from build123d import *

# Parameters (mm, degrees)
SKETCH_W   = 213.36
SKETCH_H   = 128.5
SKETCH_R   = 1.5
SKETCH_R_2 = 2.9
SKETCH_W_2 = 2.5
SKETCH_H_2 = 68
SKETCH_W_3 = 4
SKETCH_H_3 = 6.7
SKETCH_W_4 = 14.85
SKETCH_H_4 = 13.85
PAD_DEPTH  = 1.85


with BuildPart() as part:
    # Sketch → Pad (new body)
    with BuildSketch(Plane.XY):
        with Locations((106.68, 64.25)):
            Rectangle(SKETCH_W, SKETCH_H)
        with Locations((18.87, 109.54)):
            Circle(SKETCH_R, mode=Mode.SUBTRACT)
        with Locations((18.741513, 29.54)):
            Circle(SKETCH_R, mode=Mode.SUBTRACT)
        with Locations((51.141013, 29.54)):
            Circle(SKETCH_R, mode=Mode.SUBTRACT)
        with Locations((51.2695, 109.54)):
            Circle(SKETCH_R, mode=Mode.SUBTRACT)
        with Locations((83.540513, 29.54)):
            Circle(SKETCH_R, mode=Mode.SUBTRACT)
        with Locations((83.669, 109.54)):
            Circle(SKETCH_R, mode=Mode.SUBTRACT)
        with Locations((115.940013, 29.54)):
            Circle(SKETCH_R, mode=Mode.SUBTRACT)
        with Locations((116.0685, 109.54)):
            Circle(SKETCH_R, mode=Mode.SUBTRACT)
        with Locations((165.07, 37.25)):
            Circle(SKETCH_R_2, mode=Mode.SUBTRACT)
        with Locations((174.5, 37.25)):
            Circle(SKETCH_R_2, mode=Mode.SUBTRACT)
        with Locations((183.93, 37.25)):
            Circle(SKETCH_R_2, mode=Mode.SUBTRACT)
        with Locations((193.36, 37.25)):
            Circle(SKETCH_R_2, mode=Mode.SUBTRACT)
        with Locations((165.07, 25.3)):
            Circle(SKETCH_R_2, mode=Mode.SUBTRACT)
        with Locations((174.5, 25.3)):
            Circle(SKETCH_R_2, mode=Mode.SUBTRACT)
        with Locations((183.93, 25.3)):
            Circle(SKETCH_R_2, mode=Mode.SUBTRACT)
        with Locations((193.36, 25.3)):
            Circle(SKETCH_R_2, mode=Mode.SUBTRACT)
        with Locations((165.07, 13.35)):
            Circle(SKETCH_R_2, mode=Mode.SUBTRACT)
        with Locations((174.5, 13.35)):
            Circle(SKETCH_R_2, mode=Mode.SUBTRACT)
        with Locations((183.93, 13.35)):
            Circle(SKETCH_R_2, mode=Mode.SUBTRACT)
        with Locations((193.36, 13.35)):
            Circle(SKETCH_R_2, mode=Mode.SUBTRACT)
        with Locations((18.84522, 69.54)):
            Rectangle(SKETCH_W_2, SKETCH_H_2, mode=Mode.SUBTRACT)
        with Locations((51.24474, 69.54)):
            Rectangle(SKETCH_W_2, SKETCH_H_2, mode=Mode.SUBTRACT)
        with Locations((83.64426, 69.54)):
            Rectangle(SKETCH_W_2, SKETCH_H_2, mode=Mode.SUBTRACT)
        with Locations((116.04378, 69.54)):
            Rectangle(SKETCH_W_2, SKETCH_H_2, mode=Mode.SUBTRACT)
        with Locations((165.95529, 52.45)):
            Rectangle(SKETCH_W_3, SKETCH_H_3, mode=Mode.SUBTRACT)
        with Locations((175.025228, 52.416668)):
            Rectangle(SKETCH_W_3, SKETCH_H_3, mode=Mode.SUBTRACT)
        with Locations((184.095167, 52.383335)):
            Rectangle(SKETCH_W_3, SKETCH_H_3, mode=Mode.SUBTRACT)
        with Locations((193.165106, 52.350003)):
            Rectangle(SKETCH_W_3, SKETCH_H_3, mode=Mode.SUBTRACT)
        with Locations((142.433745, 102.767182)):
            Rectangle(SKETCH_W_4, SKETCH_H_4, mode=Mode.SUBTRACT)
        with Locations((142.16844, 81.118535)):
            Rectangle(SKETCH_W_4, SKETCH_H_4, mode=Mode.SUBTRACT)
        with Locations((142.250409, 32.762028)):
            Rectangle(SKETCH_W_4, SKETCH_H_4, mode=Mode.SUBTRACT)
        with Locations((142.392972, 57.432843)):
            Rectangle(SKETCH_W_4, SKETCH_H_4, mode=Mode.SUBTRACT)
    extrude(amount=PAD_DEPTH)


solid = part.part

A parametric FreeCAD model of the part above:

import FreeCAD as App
import Part
import Sketcher
Q = App.Units.Quantity

doc = App.newDocument("Part")
body = doc.addObject("PartDesign::Body", "Body")

# Sketch on XY plane
sketch1 = body.newObject("Sketcher::SketchObject", "Sketch")
sketch1.AttachmentSupport = (doc.getObject("XY_Plane"), [""])
sketch1.MapMode = "FlatFace"
sketch1.addGeometry([
    Part.LineSegment(App.Vector(0, 128.5, 0), App.Vector(0, 0, 0)),  # 0
    Part.LineSegment(App.Vector(0, 0, 0), App.Vector(213.4, 0, 0)),  # 1
    Part.LineSegment(App.Vector(213.4, 0, 0), App.Vector(213.4, 128.5, 0)),  # 2
    Part.LineSegment(App.Vector(213.4, 128.5, 0), App.Vector(0, 128.5, 0)),  # 3
    Part.Circle(App.Vector(18.7, 29.5, 0), App.Vector(0, 0, 1), 1.5),  # 4
    Part.Circle(App.Vector(51.1, 29.5, 0), App.Vector(0, 0, 1), 1.5),  # 5
    Part.Circle(App.Vector(83.5, 29.5, 0), App.Vector(0, 0, 1), 1.5),  # 6
    Part.Circle(App.Vector(115.9, 29.5, 0), App.Vector(0, 0, 1), 1.5),  # 7
    Part.LineSegment(App.Vector(149.7, 25.8, 0), App.Vector(134.8, 25.8, 0)),  # 8
    Part.LineSegment(App.Vector(134.8, 25.8, 0), App.Vector(134.8, 39.7, 0)),  # 9
    Part.LineSegment(App.Vector(134.8, 39.7, 0), App.Vector(149.7, 39.7, 0)),  # 10
    Part.LineSegment(App.Vector(149.7, 39.7, 0), App.Vector(149.7, 25.8, 0)),  # 11
    Part.Circle(App.Vector(165.1, 13.3, 0), App.Vector(0, 0, 1), 2.9),  # 12
    Part.Circle(App.Vector(174.5, 13.3, 0), App.Vector(0, 0, 1), 2.9),  # 13
    Part.Circle(App.Vector(183.9, 13.3, 0), App.Vector(0, 0, 1), 2.9),  # 14
    Part.Circle(App.Vector(193.4, 13.3, 0), App.Vector(0, 0, 1), 2.9),  # 15
    Part.Circle(App.Vector(165.1, 25.3, 0), App.Vector(0, 0, 1), 2.9),  # 16
    Part.Circle(App.Vector(174.5, 25.3, 0), App.Vector(0, 0, 1), 2.9),  # 17
    Part.Circle(App.Vector(183.9, 25.3, 0), App.Vector(0, 0, 1), 2.9),  # 18
    Part.Circle(App.Vector(193.4, 25.3, 0), App.Vector(0, 0, 1), 2.9),  # 19
    Part.LineSegment(App.Vector(149.8, 50.5, 0), App.Vector(135, 50.5, 0)),  # 20
    Part.LineSegment(App.Vector(135, 50.5, 0), App.Vector(135, 64.4, 0)),  # 21
    Part.LineSegment(App.Vector(135, 64.4, 0), App.Vector(149.8, 64.4, 0)),  # 22
    Part.LineSegment(App.Vector(149.8, 64.4, 0), App.Vector(149.8, 50.5, 0)),  # 23
    Part.Circle(App.Vector(165.1, 37.2, 0), App.Vector(0, 0, 1), 2.9),  # 24
    Part.Circle(App.Vector(174.5, 37.2, 0), App.Vector(0, 0, 1), 2.9),  # 25
    Part.Circle(App.Vector(183.9, 37.2, 0), App.Vector(0, 0, 1), 2.9),  # 26
    Part.Circle(App.Vector(193.4, 37.2, 0), App.Vector(0, 0, 1), 2.9),  # 27
    Part.LineSegment(App.Vector(168, 49.1, 0), App.Vector(164, 49.1, 0)),  # 28
    Part.LineSegment(App.Vector(164, 49.1, 0), App.Vector(164, 55.8, 0)),  # 29
    Part.LineSegment(App.Vector(164, 55.8, 0), App.Vector(168, 55.8, 0)),  # 30
    Part.LineSegment(App.Vector(168, 55.8, 0), App.Vector(168, 49.1, 0)),  # 31
    Part.LineSegment(App.Vector(177, 49.1, 0), App.Vector(173, 49.1, 0)),  # 32
    Part.LineSegment(App.Vector(173, 49.1, 0), App.Vector(173, 55.8, 0)),  # 33
    Part.LineSegment(App.Vector(173, 55.8, 0), App.Vector(177, 55.8, 0)),  # 34
    Part.LineSegment(App.Vector(177, 55.8, 0), App.Vector(177, 49.1, 0)),  # 35
    Part.LineSegment(App.Vector(186.1, 49, 0), App.Vector(182.1, 49, 0)),  # 36
    Part.LineSegment(App.Vector(182.1, 49, 0), App.Vector(182.1, 55.7, 0)),  # 37
    Part.LineSegment(App.Vector(182.1, 55.7, 0), App.Vector(186.1, 55.7, 0)),  # 38
    Part.LineSegment(App.Vector(186.1, 55.7, 0), App.Vector(186.1, 49, 0)),  # 39
    Part.LineSegment(App.Vector(195.2, 49, 0), App.Vector(191.2, 49, 0)),  # 40
    Part.LineSegment(App.Vector(191.2, 49, 0), App.Vector(191.2, 55.7, 0)),  # 41
    Part.LineSegment(App.Vector(191.2, 55.7, 0), App.Vector(195.2, 55.7, 0)),  # 42
    Part.LineSegment(App.Vector(195.2, 55.7, 0), App.Vector(195.2, 49, 0)),  # 43
    Part.LineSegment(App.Vector(20.1, 35.5, 0), App.Vector(17.6, 35.5, 0)),  # 44
    Part.LineSegment(App.Vector(17.6, 35.5, 0), App.Vector(17.6, 103.5, 0)),  # 45
    Part.LineSegment(App.Vector(17.6, 103.5, 0), App.Vector(20.1, 103.5, 0)),  # 46
    Part.LineSegment(App.Vector(20.1, 103.5, 0), App.Vector(20.1, 35.5, 0)),  # 47
    Part.LineSegment(App.Vector(52.5, 35.5, 0), App.Vector(50, 35.5, 0)),  # 48
    Part.LineSegment(App.Vector(50, 35.5, 0), App.Vector(50, 103.5, 0)),  # 49
    Part.LineSegment(App.Vector(50, 103.5, 0), App.Vector(52.5, 103.5, 0)),  # 50
    Part.LineSegment(App.Vector(52.5, 103.5, 0), App.Vector(52.5, 35.5, 0)),  # 51
    Part.LineSegment(App.Vector(84.9, 35.5, 0), App.Vector(82.4, 35.5, 0)),  # 52
    Part.LineSegment(App.Vector(82.4, 35.5, 0), App.Vector(82.4, 103.5, 0)),  # 53
    Part.LineSegment(App.Vector(82.4, 103.5, 0), App.Vector(84.9, 103.5, 0)),  # 54
    Part.LineSegment(App.Vector(84.9, 103.5, 0), App.Vector(84.9, 35.5, 0)),  # 55
    Part.Circle(App.Vector(18.9, 109.5, 0), App.Vector(0, 0, 1), 1.5),  # 56
    Part.Circle(App.Vector(51.3, 109.5, 0), App.Vector(0, 0, 1), 1.5),  # 57
    Part.Circle(App.Vector(83.7, 109.5, 0), App.Vector(0, 0, 1), 1.5),  # 58
    Part.LineSegment(App.Vector(117.3, 35.5, 0), App.Vector(114.8, 35.5, 0)),  # 59
    Part.LineSegment(App.Vector(114.8, 35.5, 0), App.Vector(114.8, 103.5, 0)),  # 60
    Part.LineSegment(App.Vector(114.8, 103.5, 0), App.Vector(117.3, 103.5, 0)),  # 61
    Part.LineSegment(App.Vector(117.3, 103.5, 0), App.Vector(117.3, 35.5, 0)),  # 62
    Part.LineSegment(App.Vector(149.6, 74.2, 0), App.Vector(134.7, 74.2, 0)),  # 63
    Part.LineSegment(App.Vector(134.7, 74.2, 0), App.Vector(134.7, 88, 0)),  # 64
    Part.LineSegment(App.Vector(134.7, 88, 0), App.Vector(149.6, 88, 0)),  # 65
    Part.LineSegment(App.Vector(149.6, 88, 0), App.Vector(149.6, 74.2, 0)),  # 66
    Part.Circle(App.Vector(116.1, 109.5, 0), App.Vector(0, 0, 1), 1.5),  # 67
    Part.LineSegment(App.Vector(149.9, 95.8, 0), App.Vector(135, 95.8, 0)),  # 68
    Part.LineSegment(App.Vector(135, 95.8, 0), App.Vector(135, 109.7, 0)),  # 69
    Part.LineSegment(App.Vector(135, 109.7, 0), App.Vector(149.9, 109.7, 0)),  # 70
    Part.LineSegment(App.Vector(149.9, 109.7, 0), App.Vector(149.9, 95.8, 0)),  # 71
], False)
sketch1.addConstraint([
    Sketcher.Constraint("Coincident", 0, 2, 1, 1),
    Sketcher.Constraint("Coincident", 1, 2, 2, 1),
    Sketcher.Constraint("Coincident", 2, 2, 3, 1),
    Sketcher.Constraint("Coincident", 3, 2, 0, 1),
    Sketcher.Constraint("Coincident", 8, 2, 9, 1),
    Sketcher.Constraint("Coincident", 9, 2, 10, 1),
    Sketcher.Constraint("Coincident", 10, 2, 11, 1),
    Sketcher.Constraint("Coincident", 11, 2, 8, 1),
    Sketcher.Constraint("Coincident", 20, 2, 21, 1),
    Sketcher.Constraint("Coincident", 21, 2, 22, 1),
    Sketcher.Constraint("Coincident", 22, 2, 23, 1),
    Sketcher.Constraint("Coincident", 23, 2, 20, 1),
    Sketcher.Constraint("Coincident", 28, 2, 29, 1),
    Sketcher.Constraint("Coincident", 29, 2, 30, 1),
    Sketcher.Constraint("Coincident", 30, 2, 31, 1),
    Sketcher.Constraint("Coincident", 31, 2, 28, 1),
    Sketcher.Constraint("Coincident", 32, 2, 33, 1),
    Sketcher.Constraint("Coincident", 33, 2, 34, 1),
    Sketcher.Constraint("Coincident", 34, 2, 35, 1),
    Sketcher.Constraint("Coincident", 35, 2, 32, 1),
    Sketcher.Constraint("Coincident", 36, 2, 37, 1),
    Sketcher.Constraint("Coincident", 37, 2, 38, 1),
    Sketcher.Constraint("Coincident", 38, 2, 39, 1),
    Sketcher.Constraint("Coincident", 39, 2, 36, 1),
    Sketcher.Constraint("Coincident", 40, 2, 41, 1),
    Sketcher.Constraint("Coincident", 41, 2, 42, 1),
    Sketcher.Constraint("Coincident", 42, 2, 43, 1),
    Sketcher.Constraint("Coincident", 43, 2, 40, 1),
    Sketcher.Constraint("Coincident", 44, 2, 45, 1),
    Sketcher.Constraint("Coincident", 45, 2, 46, 1),
    Sketcher.Constraint("Coincident", 46, 2, 47, 1),
    Sketcher.Constraint("Coincident", 47, 2, 44, 1),
    Sketcher.Constraint("Coincident", 48, 2, 49, 1),
    Sketcher.Constraint("Coincident", 49, 2, 50, 1),
    Sketcher.Constraint("Coincident", 50, 2, 51, 1),
    Sketcher.Constraint("Coincident", 51, 2, 48, 1),
    Sketcher.Constraint("Coincident", 52, 2, 53, 1),
    Sketcher.Constraint("Coincident", 53, 2, 54, 1),
    Sketcher.Constraint("Coincident", 54, 2, 55, 1),
    Sketcher.Constraint("Coincident", 55, 2, 52, 1),
    Sketcher.Constraint("Coincident", 59, 2, 60, 1),
    Sketcher.Constraint("Coincident", 60, 2, 61, 1),
    Sketcher.Constraint("Coincident", 61, 2, 62, 1),
    Sketcher.Constraint("Coincident", 62, 2, 59, 1),
    Sketcher.Constraint("Coincident", 63, 2, 64, 1),
    Sketcher.Constraint("Coincident", 64, 2, 65, 1),
    Sketcher.Constraint("Coincident", 65, 2, 66, 1),
    Sketcher.Constraint("Coincident", 66, 2, 63, 1),
    Sketcher.Constraint("Coincident", 68, 2, 69, 1),
    Sketcher.Constraint("Coincident", 69, 2, 70, 1),
    Sketcher.Constraint("Coincident", 70, 2, 71, 1),
    Sketcher.Constraint("Coincident", 71, 2, 68, 1),
    Sketcher.Constraint("Vertical", 0),
    Sketcher.Constraint("Horizontal", 1),
    Sketcher.Constraint("Vertical", 2),
    Sketcher.Constraint("Horizontal", 3),
    Sketcher.Constraint("Horizontal", 8),
    Sketcher.Constraint("Vertical", 9),
    Sketcher.Constraint("Horizontal", 10),
    Sketcher.Constraint("Vertical", 11),
    Sketcher.Constraint("Horizontal", 20),
    Sketcher.Constraint("Vertical", 21),
    Sketcher.Constraint("Horizontal", 22),
    Sketcher.Constraint("Vertical", 23),
    Sketcher.Constraint("Horizontal", 28),
    Sketcher.Constraint("Vertical", 29),
    Sketcher.Constraint("Horizontal", 30),
    Sketcher.Constraint("Vertical", 31),
    Sketcher.Constraint("Horizontal", 32),
    Sketcher.Constraint("Vertical", 33),
    Sketcher.Constraint("Horizontal", 34),
    Sketcher.Constraint("Vertical", 35),
    Sketcher.Constraint("Horizontal", 36),
    Sketcher.Constraint("Vertical", 37),
    Sketcher.Constraint("Horizontal", 38),
    Sketcher.Constraint("Vertical", 39),
    Sketcher.Constraint("Horizontal", 40),
    Sketcher.Constraint("Vertical", 41),
    Sketcher.Constraint("Horizontal", 42),
    Sketcher.Constraint("Vertical", 43),
    Sketcher.Constraint("Horizontal", 44),
    Sketcher.Constraint("Vertical", 45),
    Sketcher.Constraint("Horizontal", 46),
    Sketcher.Constraint("Vertical", 47),
    Sketcher.Constraint("Horizontal", 48),
    Sketcher.Constraint("Vertical", 49),
    Sketcher.Constraint("Horizontal", 50),
    Sketcher.Constraint("Vertical", 51),
    Sketcher.Constraint("Horizontal", 52),
    Sketcher.Constraint("Vertical", 53),
    Sketcher.Constraint("Horizontal", 54),
    Sketcher.Constraint("Vertical", 55),
    Sketcher.Constraint("Horizontal", 59),
    Sketcher.Constraint("Vertical", 60),
    Sketcher.Constraint("Horizontal", 61),
    Sketcher.Constraint("Vertical", 62),
    Sketcher.Constraint("Horizontal", 63),
    Sketcher.Constraint("Vertical", 64),
    Sketcher.Constraint("Horizontal", 65),
    Sketcher.Constraint("Vertical", 66),
    Sketcher.Constraint("Horizontal", 68),
    Sketcher.Constraint("Vertical", 69),
    Sketcher.Constraint("Horizontal", 70),
    Sketcher.Constraint("Vertical", 71),
    Sketcher.Constraint("Coincident", 0, 2, -1, 1),
    Sketcher.Constraint("Equal", 4, 5),
    Sketcher.Constraint("Equal", 5, 6),
    Sketcher.Constraint("Equal", 6, 7),
    Sketcher.Constraint("Equal", 12, 13),
    Sketcher.Constraint("Equal", 13, 14),
    Sketcher.Constraint("Equal", 14, 15),
    Sketcher.Constraint("Equal", 15, 16),
    Sketcher.Constraint("Equal", 16, 17),
    Sketcher.Constraint("Equal", 17, 18),
    Sketcher.Constraint("Equal", 18, 19),
    Sketcher.Constraint("Equal", 19, 24),
    Sketcher.Constraint("Equal", 24, 25),
    Sketcher.Constraint("Equal", 25, 26),
    Sketcher.Constraint("Equal", 26, 27),
    Sketcher.Constraint("Equal", 7, 56),
    Sketcher.Constraint("Equal", 56, 57),
    Sketcher.Constraint("Equal", 57, 58),
    Sketcher.Constraint("Equal", 58, 67),
    Sketcher.Constraint("Horizontal", 4, 3, 5, 3),
    Sketcher.Constraint("Horizontal", 5, 3, 6, 3),
    Sketcher.Constraint("Horizontal", 6, 3, 7, 3),
    Sketcher.Constraint("Horizontal", 12, 3, 13, 3),
    Sketcher.Constraint("Horizontal", 13, 3, 14, 3),
    Sketcher.Constraint("Horizontal", 14, 3, 15, 3),
    Sketcher.Constraint("Horizontal", 16, 3, 17, 3),
    Sketcher.Constraint("Horizontal", 17, 3, 18, 3),
    Sketcher.Constraint("Horizontal", 18, 3, 19, 3),
    Sketcher.Constraint("Horizontal", 24, 3, 25, 3),
    Sketcher.Constraint("Horizontal", 25, 3, 26, 3),
    Sketcher.Constraint("Horizontal", 26, 3, 27, 3),
    Sketcher.Constraint("Horizontal", 56, 3, 57, 3),
    Sketcher.Constraint("Horizontal", 57, 3, 58, 3),
    Sketcher.Constraint("Horizontal", 58, 3, 67, 3),
    Sketcher.Constraint("Horizontal", 47, 2, 48, 2),
    Sketcher.Constraint("Horizontal", 46, 2, 49, 2),
    Sketcher.Constraint("Horizontal", 51, 2, 52, 2),
    Sketcher.Constraint("Horizontal", 50, 2, 53, 2),
    Sketcher.Constraint("Horizontal", 55, 2, 59, 2),
    Sketcher.Constraint("Horizontal", 54, 2, 60, 2),
    Sketcher.Constraint("Vertical", 12, 3, 16, 3),
    Sketcher.Constraint("Vertical", 13, 3, 17, 3),
    Sketcher.Constraint("Vertical", 14, 3, 18, 3),
    Sketcher.Constraint("Vertical", 15, 3, 19, 3),
    Sketcher.Constraint("Vertical", 16, 3, 24, 3),
    Sketcher.Constraint("Vertical", 17, 3, 25, 3),
    Sketcher.Constraint("Vertical", 18, 3, 26, 3),
    Sketcher.Constraint("Vertical", 19, 3, 27, 3),
    Sketcher.Constraint("Equal", 10, 20),
    Sketcher.Constraint("Equal", 30, 32),
    Sketcher.Constraint("Equal", 34, 36),
    Sketcher.Constraint("Equal", 38, 40),
    Sketcher.Constraint("Equal", 46, 48),
    Sketcher.Constraint("Equal", 50, 52),
    Sketcher.Constraint("Equal", 54, 59),
    Sketcher.Constraint("Equal", 22, 63),
    Sketcher.Constraint("Equal", 65, 68),
    Sketcher.Constraint("Equal", 11, 21),
    Sketcher.Constraint("Equal", 31, 33),
    Sketcher.Constraint("Equal", 35, 37),
    Sketcher.Constraint("Equal", 39, 41),
    Sketcher.Constraint("Equal", 23, 64),
    Sketcher.Constraint("Equal", 66, 69),
    Sketcher.Constraint("Diameter", 4, Q("3 mm")),
    Sketcher.Constraint("Diameter", 12, Q("5.8 mm")),
    Sketcher.Constraint("DistanceX", 28, 2, 28, 1, Q("4 mm")),
    Sketcher.Constraint("DistanceY", 45, 1, 45, 2, Q("68 mm")),
    Sketcher.Constraint("DistanceX", 44, 2, 44, 1, Q("2.5 mm")),
    Sketcher.Constraint("DistanceY", 0, 2, 0, 1, Q("128.5 mm")),
    Sketcher.Constraint("DistanceY", 29, 1, 29, 2, Q("6.7 mm")),
    Sketcher.Constraint("DistanceX", 1, 1, 1, 2, Q("213.36 mm")),
    Sketcher.Constraint("DistanceX", 8, 2, 8, 1, Q("14.85 mm")),
    Sketcher.Constraint("DistanceY", 9, 1, 9, 2, Q("13.85 mm")),
    Sketcher.Constraint("DistanceX", -1, 1, 13, 3, Q("174.5 mm")),
    Sketcher.Constraint("DistanceY", -1, 1, 16, 3, Q("25.3 mm")),
    Sketcher.Constraint("DistanceY", -1, 1, 28, 2, Q("49.1 mm")),
    Sketcher.Constraint("DistanceY", -1, 1, 4, 3, Q("29.54 mm")),
    Sketcher.Constraint("DistanceX", -1, 1, 12, 3, Q("165.07 mm")),
    Sketcher.Constraint("DistanceY", -1, 1, 12, 3, Q("13.35 mm")),
    Sketcher.Constraint("DistanceX", -1, 1, 14, 3, Q("183.93 mm")),
    Sketcher.Constraint("DistanceX", -1, 1, 15, 3, Q("193.36 mm")),
    Sketcher.Constraint("DistanceY", -1, 1, 24, 3, Q("37.25 mm")),
    Sketcher.Constraint("DistanceX", -1, 1, 56, 3, Q("18.87 mm")),
    Sketcher.Constraint("DistanceY", -1, 1, 56, 3, Q("109.54 mm")),
    Sketcher.Constraint("DistanceY", -1, 1, 44, 2, Q("35.54 mm")),
    Sketcher.Constraint("DistanceX", -1, 1, 58, 3, Q("83.669 mm")),
    Sketcher.Constraint("DistanceX", -1, 1, 57, 3, Q("51.2695 mm")),
    Sketcher.Constraint("DistanceX", -1, 1, 67, 3, Q("116.0685 mm")),
    Sketcher.Constraint("DistanceX", -1, 1, 8, 2, Q("134.825409 mm")),
    Sketcher.Constraint("DistanceY", -1, 1, 8, 2, Q("25.837028 mm")),
    Sketcher.Constraint("DistanceX", -1, 1, 20, 2, Q("134.967972 mm")),
    Sketcher.Constraint("DistanceX", -1, 1, 28, 2, Q("163.95529 mm")),
    Sketcher.Constraint("DistanceX", -1, 1, 32, 2, Q("173.025228 mm")),
    Sketcher.Constraint("DistanceY", -1, 1, 33, 2, Q("55.766668 mm")),
    Sketcher.Constraint("DistanceX", -1, 1, 44, 2, Q("17.59522 mm")),
    Sketcher.Constraint("DistanceX", -1, 1, 48, 2, Q("49.99474 mm")),
    Sketcher.Constraint("DistanceX", -1, 1, 52, 2, Q("82.39426 mm")),
    Sketcher.Constraint("DistanceX", -1, 1, 59, 2, Q("114.79378 mm")),
    Sketcher.Constraint("DistanceX", -1, 1, 63, 2, Q("134.74344 mm")),
    Sketcher.Constraint("DistanceY", -1, 1, 68, 2, Q("95.842182 mm")),
    Sketcher.Constraint("DistanceX", -1, 1, 4, 3, Q("18.741513 mm")),
    Sketcher.Constraint("DistanceX", -1, 1, 5, 3, Q("51.141013 mm")),
    Sketcher.Constraint("DistanceX", -1, 1, 6, 3, Q("83.540513 mm")),
    Sketcher.Constraint("DistanceX", -1, 1, 7, 3, Q("115.940013 mm")),
    Sketcher.Constraint("DistanceY", -1, 1, 20, 2, Q("50.507843 mm")),
    Sketcher.Constraint("DistanceX", -1, 1, 36, 2, Q("182.095167 mm")),
    Sketcher.Constraint("DistanceY", -1, 1, 36, 2, Q("49.033335 mm")),
    Sketcher.Constraint("DistanceX", -1, 1, 40, 2, Q("191.165106 mm")),
    Sketcher.Constraint("DistanceY", -1, 1, 40, 2, Q("49.000003 mm")),
    Sketcher.Constraint("DistanceY", -1, 1, 63, 2, Q("74.193535 mm")),
    Sketcher.Constraint("DistanceX", -1, 1, 68, 2, Q("135.008745 mm")),
])
pad1 = body.newObject("PartDesign::Pad", "Pad")
pad1.Profile = sketch1
pad1.Length = 1.85

doc.recompute()
